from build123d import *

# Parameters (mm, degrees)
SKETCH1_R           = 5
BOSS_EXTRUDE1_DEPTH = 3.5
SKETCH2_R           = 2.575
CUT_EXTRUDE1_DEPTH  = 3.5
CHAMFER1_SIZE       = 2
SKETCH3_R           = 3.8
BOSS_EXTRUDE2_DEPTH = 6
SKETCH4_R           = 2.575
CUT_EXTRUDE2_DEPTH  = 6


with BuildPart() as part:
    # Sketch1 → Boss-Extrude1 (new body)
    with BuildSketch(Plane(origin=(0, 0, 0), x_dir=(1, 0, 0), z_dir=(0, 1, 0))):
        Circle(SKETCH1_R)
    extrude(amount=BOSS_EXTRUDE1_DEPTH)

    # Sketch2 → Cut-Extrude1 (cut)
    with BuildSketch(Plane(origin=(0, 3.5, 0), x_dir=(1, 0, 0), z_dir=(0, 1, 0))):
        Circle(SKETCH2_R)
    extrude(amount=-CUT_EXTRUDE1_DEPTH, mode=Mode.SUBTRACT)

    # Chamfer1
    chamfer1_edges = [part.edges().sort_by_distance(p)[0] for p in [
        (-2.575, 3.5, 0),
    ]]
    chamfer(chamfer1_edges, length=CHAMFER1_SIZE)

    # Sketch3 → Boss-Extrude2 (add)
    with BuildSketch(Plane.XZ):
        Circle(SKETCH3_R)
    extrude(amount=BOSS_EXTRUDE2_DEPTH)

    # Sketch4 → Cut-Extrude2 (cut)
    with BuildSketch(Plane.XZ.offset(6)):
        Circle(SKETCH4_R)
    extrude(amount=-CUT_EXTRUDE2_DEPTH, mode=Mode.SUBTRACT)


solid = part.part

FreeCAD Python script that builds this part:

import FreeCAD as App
import Part
import Sketcher
from FreeCAD import Vector


def edges_at(feature, points):
    """Names of the edges that pass closest to the given points."""
    edges = feature.Shape.Edges
    near = lambda p: min(range(len(edges)), key=lambda i: edges[i].distToShape(Part.Vertex(*p))[0])
    return sorted({f"Edge{near(p) + 1}" for p in points})

doc = App.newDocument("Part")
body = doc.addObject("PartDesign::Body", "Body")

# Sketch on XZ plane
sketch1 = doc.addObject("Sketcher::SketchObject", "Sketch")
body.addObject(sketch1)
sketch1.AttachmentSupport = (doc.XZ_Plane, [""])
sketch1.MapMode = "FlatFace"
sketch1.addGeometry(Part.Circle(Vector(0, 0, 0), Vector(0, 0, 1), 5), False)
sketch1.addConstraint([
    Sketcher.Constraint("Coincident", 0, 3, -1, 1),
    Sketcher.Constraint("Diameter", 0, 10.0),
])
pad1 = doc.addObject("PartDesign::Pad", "Pad")
body.addObject(pad1)
pad1.Profile = sketch1
pad1.Length = 3.5
pad1.Reversed = True

# Sketch on XZ plane
sketch2 = doc.addObject("Sketcher::SketchObject", "Sketch001")
body.addObject(sketch2)
sketch2.AttachmentSupport = (doc.XZ_Plane, [""])
sketch2.MapMode = "FlatFace"
sketch2.AttachmentOffset = App.Placement(Vector(0, 0, -3.5), App.Rotation())
sketch2.addGeometry(Part.Circle(Vector(0, 0, 0), Vector(0, 0, 1), 2.6), False)
sketch2.addConstraint([
    Sketcher.Constraint("Coincident", 0, 3, -1, 1),
    Sketcher.Constraint("Diameter", 0, 5.15),
])
pocket1 = doc.addObject("PartDesign::Pocket", "Pocket")
body.addObject(pocket1)
pocket1.Profile = sketch2
pocket1.Length = 3.5
pocket1.Reversed = True
doc.recompute()

chamfer = doc.addObject("PartDesign::Chamfer", "Chamfer")
body.addObject(chamfer)
chamfer.Base = (pocket1, edges_at(pocket1, [(-2.575, 3.5, 0)]))
chamfer.Size = 2

# Sketch on XZ plane
sketch3 = doc.addObject("Sketcher::SketchObject", "Sketch002")
body.addObject(sketch3)
sketch3.AttachmentSupport = (doc.XZ_Plane, [""])
sketch3.MapMode = "FlatFace"
sketch3.addGeometry(Part.Circle(Vector(0, 0, 0), Vector(0, 0, 1), 3.8), False)
sketch3.addConstraint([
    Sketcher.Constraint("Coincident", 0, 3, -1, 1),
    Sketcher.Constraint("Diameter", 0, 7.6),
])
pad2 = doc.addObject("PartDesign::Pad", "Pad001")
body.addObject(pad2)
pad2.Profile = sketch3
pad2.Length = 6

# Sketch on XZ plane
sketch4 = doc.addObject("Sketcher::SketchObject", "Sketch003")
body.addObject(sketch4)
sketch4.AttachmentSupport = (doc.XZ_Plane, [""])
sketch4.MapMode = "FlatFace"
sketch4.AttachmentOffset = App.Placement(Vector(0, 0, 6), App.Rotation())
sketch4.addGeometry(Part.Circle(Vector(0, 0, 0), Vector(0, 0, 1), 2.6), False)
sketch4.addConstraint([
    Sketcher.Constraint("Coincident", 0, 3, -1, 1),
    Sketcher.Constraint("Diameter", 0, 5.15),
])
pocket2 = doc.addObject("PartDesign::Pocket", "Pocket001")
body.addObject(pocket2)
pocket2.Profile = sketch4
pocket2.Length = 6

doc.recompute()
